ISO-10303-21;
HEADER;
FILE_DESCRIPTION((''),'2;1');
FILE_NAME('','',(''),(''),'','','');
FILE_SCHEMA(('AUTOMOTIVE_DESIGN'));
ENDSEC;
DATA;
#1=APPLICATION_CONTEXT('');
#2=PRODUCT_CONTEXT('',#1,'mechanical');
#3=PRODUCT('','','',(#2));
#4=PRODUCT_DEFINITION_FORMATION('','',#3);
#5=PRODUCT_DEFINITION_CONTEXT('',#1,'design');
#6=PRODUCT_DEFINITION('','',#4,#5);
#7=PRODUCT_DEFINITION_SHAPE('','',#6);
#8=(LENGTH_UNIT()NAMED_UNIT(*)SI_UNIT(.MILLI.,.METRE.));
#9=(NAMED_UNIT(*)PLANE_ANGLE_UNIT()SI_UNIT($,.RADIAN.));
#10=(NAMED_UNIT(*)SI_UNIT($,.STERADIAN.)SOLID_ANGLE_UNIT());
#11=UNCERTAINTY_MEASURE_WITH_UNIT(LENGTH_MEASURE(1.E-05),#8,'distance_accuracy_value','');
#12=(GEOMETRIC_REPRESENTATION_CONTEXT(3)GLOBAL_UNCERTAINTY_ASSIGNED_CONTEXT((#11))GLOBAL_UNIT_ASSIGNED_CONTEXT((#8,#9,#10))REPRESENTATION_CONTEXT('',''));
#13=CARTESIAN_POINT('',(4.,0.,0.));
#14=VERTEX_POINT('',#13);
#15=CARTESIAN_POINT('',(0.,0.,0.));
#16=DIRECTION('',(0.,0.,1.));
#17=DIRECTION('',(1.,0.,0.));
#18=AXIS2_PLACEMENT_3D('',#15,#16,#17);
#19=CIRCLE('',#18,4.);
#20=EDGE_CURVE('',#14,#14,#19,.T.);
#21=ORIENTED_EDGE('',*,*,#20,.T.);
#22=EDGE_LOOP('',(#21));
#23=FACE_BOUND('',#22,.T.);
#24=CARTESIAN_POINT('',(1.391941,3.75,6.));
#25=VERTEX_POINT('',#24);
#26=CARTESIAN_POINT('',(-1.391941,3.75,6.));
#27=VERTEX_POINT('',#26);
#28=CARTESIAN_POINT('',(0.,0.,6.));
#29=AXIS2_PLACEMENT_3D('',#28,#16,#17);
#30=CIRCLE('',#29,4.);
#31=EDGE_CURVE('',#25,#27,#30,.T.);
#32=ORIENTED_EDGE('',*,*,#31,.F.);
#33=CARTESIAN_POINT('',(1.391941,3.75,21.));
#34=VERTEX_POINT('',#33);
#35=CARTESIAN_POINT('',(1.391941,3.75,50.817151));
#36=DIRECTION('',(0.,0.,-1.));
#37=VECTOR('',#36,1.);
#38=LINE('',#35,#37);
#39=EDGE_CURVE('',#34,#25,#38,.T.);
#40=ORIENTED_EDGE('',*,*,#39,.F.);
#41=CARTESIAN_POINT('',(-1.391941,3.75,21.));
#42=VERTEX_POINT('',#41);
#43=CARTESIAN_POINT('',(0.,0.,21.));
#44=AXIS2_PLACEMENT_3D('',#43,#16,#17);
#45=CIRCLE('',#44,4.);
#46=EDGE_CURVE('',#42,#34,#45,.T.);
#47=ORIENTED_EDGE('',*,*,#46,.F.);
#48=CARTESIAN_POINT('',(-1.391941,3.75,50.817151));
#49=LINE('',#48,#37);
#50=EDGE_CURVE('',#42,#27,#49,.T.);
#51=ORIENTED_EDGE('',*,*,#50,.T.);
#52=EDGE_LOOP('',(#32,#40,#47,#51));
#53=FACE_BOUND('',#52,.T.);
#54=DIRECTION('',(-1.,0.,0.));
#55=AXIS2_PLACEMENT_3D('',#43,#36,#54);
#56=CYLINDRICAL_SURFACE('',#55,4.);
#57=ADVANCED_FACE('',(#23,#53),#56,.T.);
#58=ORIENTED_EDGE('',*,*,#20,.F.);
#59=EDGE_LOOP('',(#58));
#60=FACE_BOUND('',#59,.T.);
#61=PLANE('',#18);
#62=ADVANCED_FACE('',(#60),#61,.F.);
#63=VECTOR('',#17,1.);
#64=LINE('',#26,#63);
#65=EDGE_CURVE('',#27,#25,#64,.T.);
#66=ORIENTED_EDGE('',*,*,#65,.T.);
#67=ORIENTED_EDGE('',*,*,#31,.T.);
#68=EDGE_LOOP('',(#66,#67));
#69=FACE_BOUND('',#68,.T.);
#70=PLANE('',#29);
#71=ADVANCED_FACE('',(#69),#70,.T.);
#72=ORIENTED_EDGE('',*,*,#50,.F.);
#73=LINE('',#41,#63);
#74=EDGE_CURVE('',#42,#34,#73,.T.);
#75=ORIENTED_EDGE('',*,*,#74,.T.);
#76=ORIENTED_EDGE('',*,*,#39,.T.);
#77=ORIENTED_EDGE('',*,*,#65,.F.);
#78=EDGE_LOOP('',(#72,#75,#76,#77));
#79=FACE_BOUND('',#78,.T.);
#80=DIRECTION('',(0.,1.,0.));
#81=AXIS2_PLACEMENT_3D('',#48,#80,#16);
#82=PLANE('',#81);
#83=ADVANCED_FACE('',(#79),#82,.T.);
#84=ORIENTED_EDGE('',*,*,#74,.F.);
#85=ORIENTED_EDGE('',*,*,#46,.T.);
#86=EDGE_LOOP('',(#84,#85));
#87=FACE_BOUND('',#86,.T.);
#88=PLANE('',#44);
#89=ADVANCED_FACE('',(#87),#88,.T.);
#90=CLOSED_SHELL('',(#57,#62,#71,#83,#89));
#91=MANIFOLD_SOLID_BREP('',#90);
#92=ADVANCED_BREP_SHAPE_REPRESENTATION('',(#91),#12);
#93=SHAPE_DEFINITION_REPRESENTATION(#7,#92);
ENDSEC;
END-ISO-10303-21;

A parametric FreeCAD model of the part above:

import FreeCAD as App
import Part
import Sketcher
from FreeCAD import Vector


def add_polygon(sketch, points):
    """Adds a closed chain of lines whose ends are joined by coincident constraints."""
    first, n = sketch.GeometryCount, len(points)
    for a, b in zip(points, points[1:] + points[:1]):
        sketch.addGeometry(Part.LineSegment(App.Vector(*a, 0), App.Vector(*b, 0)), False)
    for i in range(n):
        sketch.addConstraint(Sketcher.Constraint("Coincident", first + i, 2, first + (i + 1) % n, 1))

doc = App.newDocument("Part")
body = doc.addObject("PartDesign::Body", "Body")

# Sketch on XY plane
sketch1 = body.newObject("Sketcher::SketchObject", "Sketch")
sketch1.AttachmentSupport = (doc.getObject("XY_Plane"), [""])
sketch1.MapMode = "FlatFace"
sketch1.addGeometry(Part.Circle(Vector(0, 0, 0), Vector(0, 0, 1), 4), False)
sketch1.addConstraint([
    Sketcher.Constraint("Coincident", 0, 3, -1, 1),
    Sketcher.Constraint("Diameter", 0, 8.0),
])
pad1 = body.newObject("PartDesign::Pad", "Pad")
pad1.Profile = sketch1
pad1.Length = 21

# Sketch on XY plane
sketch2 = body.newObject("Sketcher::SketchObject", "Sketch001")
sketch2.AttachmentSupport = (doc.getObject("XY_Plane"), [""])
sketch2.MapMode = "FlatFace"
sketch2.AttachmentOffset = App.Placement(Vector(0, 0, 21), App.Rotation())
add_polygon(sketch2, [(-30, 4), (30, 4), (30, 62), (-30, 62)])  # lines 0-3
sketch2.addConstraint([
    Sketcher.Constraint("Horizontal", 0),
    Sketcher.Constraint("Vertical", 1),
    Sketcher.Constraint("Horizontal", 2),
    Sketcher.Constraint("Vertical", 3),
    Sketcher.Constraint("DistanceY", -1, 1, 0, 2, 3.75),
    Sketcher.Constraint("DistanceX", 0, 1, 0, 2, 60.548528),
    Sketcher.Constraint("DistanceY", 1, 1, 1, 2, 57.764646),
    Sketcher.Constraint("DistanceX", -1, 1, 0, 2, 30.274264),
])
pocket1 = body.newObject("PartDesign::Pocket", "Pocket")
pocket1.Profile = sketch2
pocket1.Type = "TwoLengths"
pocket1.Length = 1
pocket1.Length2 = 15
pocket1.Reversed = True

doc.recompute()
